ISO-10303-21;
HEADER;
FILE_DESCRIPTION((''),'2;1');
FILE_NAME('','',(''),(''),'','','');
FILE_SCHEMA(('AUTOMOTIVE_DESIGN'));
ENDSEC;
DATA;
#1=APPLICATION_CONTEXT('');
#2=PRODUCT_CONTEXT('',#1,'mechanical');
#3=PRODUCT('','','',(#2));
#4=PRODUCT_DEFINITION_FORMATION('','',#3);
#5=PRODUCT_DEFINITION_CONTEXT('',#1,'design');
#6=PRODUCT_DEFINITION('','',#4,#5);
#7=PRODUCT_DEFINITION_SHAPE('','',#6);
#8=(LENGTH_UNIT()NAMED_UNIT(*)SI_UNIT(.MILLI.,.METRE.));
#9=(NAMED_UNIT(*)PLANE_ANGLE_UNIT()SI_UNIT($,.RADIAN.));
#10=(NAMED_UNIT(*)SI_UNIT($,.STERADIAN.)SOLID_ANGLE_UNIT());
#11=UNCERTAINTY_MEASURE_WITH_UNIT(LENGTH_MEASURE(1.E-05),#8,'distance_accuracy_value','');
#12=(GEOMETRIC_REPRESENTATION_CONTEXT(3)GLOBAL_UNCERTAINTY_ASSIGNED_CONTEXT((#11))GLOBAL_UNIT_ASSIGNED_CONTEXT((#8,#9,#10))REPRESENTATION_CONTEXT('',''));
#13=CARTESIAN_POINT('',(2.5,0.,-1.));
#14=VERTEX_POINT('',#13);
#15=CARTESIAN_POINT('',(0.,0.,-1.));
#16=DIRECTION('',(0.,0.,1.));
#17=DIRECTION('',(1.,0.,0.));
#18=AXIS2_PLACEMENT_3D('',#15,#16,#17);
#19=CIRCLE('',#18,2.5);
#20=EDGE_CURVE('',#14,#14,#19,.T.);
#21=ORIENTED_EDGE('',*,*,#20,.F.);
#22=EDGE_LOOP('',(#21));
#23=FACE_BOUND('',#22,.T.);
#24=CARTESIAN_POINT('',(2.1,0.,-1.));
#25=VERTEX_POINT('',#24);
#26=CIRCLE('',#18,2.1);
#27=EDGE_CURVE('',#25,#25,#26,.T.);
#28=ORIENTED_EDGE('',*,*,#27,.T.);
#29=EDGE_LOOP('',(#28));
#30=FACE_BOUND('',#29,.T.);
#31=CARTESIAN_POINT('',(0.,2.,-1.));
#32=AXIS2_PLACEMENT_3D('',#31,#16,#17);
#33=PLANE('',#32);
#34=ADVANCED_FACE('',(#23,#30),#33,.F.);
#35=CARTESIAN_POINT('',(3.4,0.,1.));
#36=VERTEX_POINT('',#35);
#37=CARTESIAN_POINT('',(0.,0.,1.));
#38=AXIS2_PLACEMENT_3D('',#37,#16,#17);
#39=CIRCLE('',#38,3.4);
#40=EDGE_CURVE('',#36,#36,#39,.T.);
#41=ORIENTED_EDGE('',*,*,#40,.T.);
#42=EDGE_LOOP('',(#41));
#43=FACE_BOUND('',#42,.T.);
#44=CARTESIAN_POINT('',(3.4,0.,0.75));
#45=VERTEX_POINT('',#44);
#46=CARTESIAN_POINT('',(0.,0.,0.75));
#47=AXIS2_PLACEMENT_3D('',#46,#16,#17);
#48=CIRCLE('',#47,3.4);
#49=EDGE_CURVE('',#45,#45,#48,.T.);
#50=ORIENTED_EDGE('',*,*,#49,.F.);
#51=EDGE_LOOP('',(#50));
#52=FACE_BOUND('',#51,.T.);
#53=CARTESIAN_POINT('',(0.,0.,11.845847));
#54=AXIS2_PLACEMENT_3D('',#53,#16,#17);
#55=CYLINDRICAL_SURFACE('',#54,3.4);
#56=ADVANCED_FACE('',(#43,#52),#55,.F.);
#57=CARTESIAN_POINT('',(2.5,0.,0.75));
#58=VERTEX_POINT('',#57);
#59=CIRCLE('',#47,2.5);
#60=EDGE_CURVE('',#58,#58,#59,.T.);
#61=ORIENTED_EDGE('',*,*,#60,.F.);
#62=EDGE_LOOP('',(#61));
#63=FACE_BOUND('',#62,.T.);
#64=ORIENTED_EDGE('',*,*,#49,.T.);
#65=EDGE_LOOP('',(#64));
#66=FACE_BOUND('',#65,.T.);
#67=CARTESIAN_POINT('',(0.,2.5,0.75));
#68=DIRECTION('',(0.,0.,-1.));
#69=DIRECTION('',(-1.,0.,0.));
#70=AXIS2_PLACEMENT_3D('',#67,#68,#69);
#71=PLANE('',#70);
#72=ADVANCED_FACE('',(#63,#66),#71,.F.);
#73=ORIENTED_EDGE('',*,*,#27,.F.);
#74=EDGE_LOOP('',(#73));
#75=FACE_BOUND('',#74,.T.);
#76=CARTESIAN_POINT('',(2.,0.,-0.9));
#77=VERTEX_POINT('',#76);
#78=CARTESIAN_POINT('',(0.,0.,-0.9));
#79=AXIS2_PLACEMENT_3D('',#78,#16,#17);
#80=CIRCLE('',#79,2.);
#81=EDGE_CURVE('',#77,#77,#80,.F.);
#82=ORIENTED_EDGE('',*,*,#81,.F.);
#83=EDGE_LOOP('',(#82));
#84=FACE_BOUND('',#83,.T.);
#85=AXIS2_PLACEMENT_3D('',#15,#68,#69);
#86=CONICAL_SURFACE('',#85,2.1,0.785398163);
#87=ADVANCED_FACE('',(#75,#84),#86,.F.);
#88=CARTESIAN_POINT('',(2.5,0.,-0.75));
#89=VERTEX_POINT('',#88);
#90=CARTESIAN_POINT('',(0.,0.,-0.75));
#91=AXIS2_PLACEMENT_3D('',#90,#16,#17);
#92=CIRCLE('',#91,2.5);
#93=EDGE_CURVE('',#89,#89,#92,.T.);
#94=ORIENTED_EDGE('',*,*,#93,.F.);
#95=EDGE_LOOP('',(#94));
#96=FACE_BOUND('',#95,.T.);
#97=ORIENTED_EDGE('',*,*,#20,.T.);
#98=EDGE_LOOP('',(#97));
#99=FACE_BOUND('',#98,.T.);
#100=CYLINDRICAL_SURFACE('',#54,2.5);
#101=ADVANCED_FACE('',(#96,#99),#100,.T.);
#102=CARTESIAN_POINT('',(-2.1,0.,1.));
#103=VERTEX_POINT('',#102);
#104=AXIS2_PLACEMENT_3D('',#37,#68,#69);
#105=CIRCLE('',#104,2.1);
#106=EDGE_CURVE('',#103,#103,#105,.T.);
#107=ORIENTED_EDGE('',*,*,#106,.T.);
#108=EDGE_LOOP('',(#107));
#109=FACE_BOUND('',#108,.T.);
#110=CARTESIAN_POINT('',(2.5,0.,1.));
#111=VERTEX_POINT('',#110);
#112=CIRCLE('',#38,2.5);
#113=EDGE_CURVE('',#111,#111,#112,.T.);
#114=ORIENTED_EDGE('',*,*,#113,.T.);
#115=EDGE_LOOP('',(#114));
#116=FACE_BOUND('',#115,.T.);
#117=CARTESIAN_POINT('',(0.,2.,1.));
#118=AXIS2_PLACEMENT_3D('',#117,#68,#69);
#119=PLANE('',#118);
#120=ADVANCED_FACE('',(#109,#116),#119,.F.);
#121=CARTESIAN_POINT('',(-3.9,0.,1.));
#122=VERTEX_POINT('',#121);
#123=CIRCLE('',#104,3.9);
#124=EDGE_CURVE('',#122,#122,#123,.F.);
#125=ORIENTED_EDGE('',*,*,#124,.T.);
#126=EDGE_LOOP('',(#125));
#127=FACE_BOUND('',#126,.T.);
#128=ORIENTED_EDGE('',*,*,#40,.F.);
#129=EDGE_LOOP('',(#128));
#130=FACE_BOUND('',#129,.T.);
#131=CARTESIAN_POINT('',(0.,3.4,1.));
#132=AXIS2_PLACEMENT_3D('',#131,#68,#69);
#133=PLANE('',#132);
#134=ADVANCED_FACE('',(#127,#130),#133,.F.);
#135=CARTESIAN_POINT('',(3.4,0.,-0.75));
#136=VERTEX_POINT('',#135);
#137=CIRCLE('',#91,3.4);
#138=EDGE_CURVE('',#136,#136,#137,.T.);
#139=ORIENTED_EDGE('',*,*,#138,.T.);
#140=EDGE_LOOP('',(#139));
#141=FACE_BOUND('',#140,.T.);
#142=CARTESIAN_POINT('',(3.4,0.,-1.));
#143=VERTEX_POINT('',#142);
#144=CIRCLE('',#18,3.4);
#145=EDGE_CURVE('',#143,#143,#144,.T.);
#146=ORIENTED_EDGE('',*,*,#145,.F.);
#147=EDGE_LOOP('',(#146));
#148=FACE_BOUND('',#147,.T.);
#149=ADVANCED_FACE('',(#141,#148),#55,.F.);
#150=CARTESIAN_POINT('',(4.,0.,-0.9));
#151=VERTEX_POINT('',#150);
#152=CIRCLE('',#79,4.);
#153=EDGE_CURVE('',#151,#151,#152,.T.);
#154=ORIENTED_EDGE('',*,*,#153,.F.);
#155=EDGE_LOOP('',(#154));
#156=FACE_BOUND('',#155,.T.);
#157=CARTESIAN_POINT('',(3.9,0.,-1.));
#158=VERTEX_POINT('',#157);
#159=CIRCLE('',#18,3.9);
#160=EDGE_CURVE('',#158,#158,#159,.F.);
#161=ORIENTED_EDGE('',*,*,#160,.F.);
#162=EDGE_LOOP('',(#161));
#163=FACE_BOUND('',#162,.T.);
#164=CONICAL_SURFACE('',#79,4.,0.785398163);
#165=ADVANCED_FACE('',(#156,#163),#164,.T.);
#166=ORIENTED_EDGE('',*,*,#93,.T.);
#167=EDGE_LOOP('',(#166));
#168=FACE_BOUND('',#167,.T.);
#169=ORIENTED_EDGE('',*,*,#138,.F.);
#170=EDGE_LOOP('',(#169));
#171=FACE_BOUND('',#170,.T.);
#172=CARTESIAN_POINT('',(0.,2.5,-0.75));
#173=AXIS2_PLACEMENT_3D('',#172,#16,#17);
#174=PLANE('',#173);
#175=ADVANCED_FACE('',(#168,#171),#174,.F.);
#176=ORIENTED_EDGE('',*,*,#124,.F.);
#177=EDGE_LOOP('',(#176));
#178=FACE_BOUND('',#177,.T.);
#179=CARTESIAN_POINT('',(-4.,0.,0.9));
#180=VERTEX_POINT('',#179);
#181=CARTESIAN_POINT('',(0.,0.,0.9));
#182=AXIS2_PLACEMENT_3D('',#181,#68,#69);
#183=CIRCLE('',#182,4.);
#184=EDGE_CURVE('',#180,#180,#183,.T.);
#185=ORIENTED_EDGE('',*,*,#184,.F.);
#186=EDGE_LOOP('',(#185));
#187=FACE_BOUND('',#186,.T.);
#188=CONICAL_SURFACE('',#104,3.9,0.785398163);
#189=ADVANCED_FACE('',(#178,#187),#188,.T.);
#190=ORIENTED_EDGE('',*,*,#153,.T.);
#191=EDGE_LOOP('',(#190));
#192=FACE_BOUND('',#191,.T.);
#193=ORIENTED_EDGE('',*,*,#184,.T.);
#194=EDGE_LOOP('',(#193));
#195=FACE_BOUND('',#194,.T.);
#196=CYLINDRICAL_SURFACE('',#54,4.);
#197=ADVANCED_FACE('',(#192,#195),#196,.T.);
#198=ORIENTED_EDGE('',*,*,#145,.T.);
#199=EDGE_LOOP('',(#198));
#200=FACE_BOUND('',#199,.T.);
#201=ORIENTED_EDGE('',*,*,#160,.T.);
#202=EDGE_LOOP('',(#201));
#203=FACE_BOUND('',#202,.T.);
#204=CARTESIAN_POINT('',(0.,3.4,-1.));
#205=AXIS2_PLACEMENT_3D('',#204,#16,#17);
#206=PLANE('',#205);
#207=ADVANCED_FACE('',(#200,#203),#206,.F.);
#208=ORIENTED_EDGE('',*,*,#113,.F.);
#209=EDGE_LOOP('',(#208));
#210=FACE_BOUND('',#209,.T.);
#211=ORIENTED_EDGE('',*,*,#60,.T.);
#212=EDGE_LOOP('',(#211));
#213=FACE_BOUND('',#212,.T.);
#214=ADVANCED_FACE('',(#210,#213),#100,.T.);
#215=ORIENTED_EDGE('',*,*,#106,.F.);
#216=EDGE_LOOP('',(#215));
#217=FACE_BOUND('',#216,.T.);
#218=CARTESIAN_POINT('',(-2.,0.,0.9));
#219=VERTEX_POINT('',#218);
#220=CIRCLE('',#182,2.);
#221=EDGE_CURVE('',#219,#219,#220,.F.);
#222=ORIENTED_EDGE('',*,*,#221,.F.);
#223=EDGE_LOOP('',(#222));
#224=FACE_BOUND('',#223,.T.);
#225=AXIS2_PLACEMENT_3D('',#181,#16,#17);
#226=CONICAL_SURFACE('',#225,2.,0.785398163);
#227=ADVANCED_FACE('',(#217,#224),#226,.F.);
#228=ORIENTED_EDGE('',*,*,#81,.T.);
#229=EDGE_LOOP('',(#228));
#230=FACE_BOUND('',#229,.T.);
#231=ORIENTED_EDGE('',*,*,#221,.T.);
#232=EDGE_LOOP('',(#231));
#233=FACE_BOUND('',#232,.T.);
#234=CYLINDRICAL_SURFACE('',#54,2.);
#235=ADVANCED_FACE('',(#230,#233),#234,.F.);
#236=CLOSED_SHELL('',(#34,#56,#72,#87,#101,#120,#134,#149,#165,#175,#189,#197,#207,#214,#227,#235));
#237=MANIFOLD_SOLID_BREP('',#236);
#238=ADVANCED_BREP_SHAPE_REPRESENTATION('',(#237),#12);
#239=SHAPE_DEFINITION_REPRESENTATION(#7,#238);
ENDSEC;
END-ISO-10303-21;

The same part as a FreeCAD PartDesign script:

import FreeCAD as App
import Part
import Sketcher


def edges_at(feature, points):
    """Names of the edges that pass closest to the given points."""
    edges = feature.Shape.Edges
    near = lambda p: min(range(len(edges)), key=lambda i: edges[i].distToShape(Part.Vertex(*p))[0])
    return sorted({f"Edge{near(p) + 1}" for p in points})


def add_polygon(sketch, points):
    """Adds a closed chain of lines whose ends are joined by coincident constraints."""
    first, n = sketch.GeometryCount, len(points)
    for a, b in zip(points, points[1:] + points[:1]):
        sketch.addGeometry(Part.LineSegment(App.Vector(*a, 0), App.Vector(*b, 0)), False)
    for i in range(n):
        sketch.addConstraint(Sketcher.Constraint("Coincident", first + i, 2, first + (i + 1) % n, 1))

doc = App.newDocument("Part")
body = doc.addObject("PartDesign::Body", "Body")

# Sketch on YZ plane
sketch1 = body.newObject("Sketcher::SketchObject", "Sketch")
sketch1.AttachmentSupport = (doc.getObject("YZ_Plane"), [""])
sketch1.MapMode = "FlatFace"
add_polygon(sketch1, [(2, 1), (2, -1), (2.5, -1), (2.5, -0.75), (3.4, -0.75), (3.4, -1), (4, -1), (4, 1), (3.4, 1), (3.4, 0.75), (2.5, 0.75), (2.5, 1)])  # lines 0-11
sketch1.addConstraint(Sketcher.Constraint("Vertical", 0))
sketch1.addConstraint(Sketcher.Constraint("Horizontal", 1))
sketch1.addConstraint(Sketcher.Constraint("Vertical", 2))
sketch1.addConstraint(Sketcher.Constraint("Horizontal", 3))
sketch1.addConstraint(Sketcher.Constraint("Vertical", 4))
sketch1.addConstraint(Sketcher.Constraint("Horizontal", 5))
sketch1.addConstraint(Sketcher.Constraint("Vertical", 6))
sketch1.addConstraint(Sketcher.Constraint("Horizontal", 7))
sketch1.addConstraint(Sketcher.Constraint("Vertical", 8))
sketch1.addConstraint(Sketcher.Constraint("Horizontal", 9))
sketch1.addConstraint(Sketcher.Constraint("Vertical", 10))
sketch1.addConstraint(Sketcher.Constraint("Horizontal", 11))
sketch1.addConstraint(Sketcher.Constraint("Symmetric", 4, 2, 7, 2, -1))
sketch1.addConstraint(Sketcher.Constraint("Symmetric", 2, 2, 9, 2, -1))
sketch1.addConstraint(Sketcher.Constraint("Horizontal", 1, 2, 4, 2))
sketch1.addConstraint(Sketcher.Constraint("Horizontal", 7, 2, 10, 2))
sketch1.addConstraint(Sketcher.Constraint("DistanceY", 0, 2, 0, 1, 2.0))
sketch1.addConstraint(Sketcher.Constraint("DistanceX", 1, 1, 1, 2, 0.5))
sketch1.addConstraint(Sketcher.Constraint("DistanceX", 3, 1, 3, 2, 0.9))
sketch1.addConstraint(Sketcher.Constraint("DistanceX", 5, 1, 5, 2, 0.6))
sketch1.addConstraint(Sketcher.Constraint("DistanceX", -1, 1, 0, 2, 2.0))
sketch1.addConstraint(Sketcher.Constraint("DistanceY", 2, 1, 2, 2, 0.25))
revolution = body.newObject("PartDesign::Revolution", "Revolution")
revolution.Profile = sketch1
revolution.ReferenceAxis = (sketch1, ["V_Axis"])
revolution.Angle = 360
doc.recompute()

chamfer = body.newObject("PartDesign::Chamfer", "Chamfer")
chamfer.Base = (revolution, edges_at(revolution, [
    (-4, 0, 1),
    (-4, 0, -1),
    (-2, 0, -1),
    (-2, 0, 1),
]))
chamfer.Size = 0.1

doc.recompute()
